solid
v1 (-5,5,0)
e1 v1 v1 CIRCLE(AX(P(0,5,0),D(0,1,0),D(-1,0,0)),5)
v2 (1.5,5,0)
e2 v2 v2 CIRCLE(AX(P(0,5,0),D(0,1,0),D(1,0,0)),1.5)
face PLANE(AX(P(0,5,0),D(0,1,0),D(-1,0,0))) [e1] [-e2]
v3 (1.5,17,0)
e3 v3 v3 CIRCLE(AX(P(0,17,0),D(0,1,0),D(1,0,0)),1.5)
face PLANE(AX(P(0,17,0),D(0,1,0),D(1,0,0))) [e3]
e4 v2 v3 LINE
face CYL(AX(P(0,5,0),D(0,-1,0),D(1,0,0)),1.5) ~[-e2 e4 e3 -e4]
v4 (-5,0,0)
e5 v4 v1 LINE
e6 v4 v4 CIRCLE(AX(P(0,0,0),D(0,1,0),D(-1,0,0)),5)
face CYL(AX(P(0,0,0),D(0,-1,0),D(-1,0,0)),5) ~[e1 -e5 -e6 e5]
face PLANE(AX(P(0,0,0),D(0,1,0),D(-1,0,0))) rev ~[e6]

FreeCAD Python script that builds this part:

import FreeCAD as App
import Part
import Sketcher
from FreeCAD import Vector

doc = App.newDocument("Part")
body = doc.addObject("PartDesign::Body", "Body")

# Sketch on XZ plane
sketch1 = body.newObject("Sketcher::SketchObject", "Sketch")
sketch1.AttachmentSupport = (doc.getObject("XZ_Plane"), [""])
sketch1.MapMode = "FlatFace"
sketch1.addGeometry(Part.Circle(Vector(0, 0, 0), Vector(0, 0, 1), 5), False)
sketch1.addConstraint(Sketcher.Constraint("Coincident", 0, 3, -1, 1))
sketch1.addConstraint(Sketcher.Constraint("Diameter", 0, 10.0))
pad1 = body.newObject("PartDesign::Pad", "Pad")
pad1.Profile = sketch1
pad1.Length = 5
pad1.Reversed = True

# Sketch on XZ plane
sketch2 = body.newObject("Sketcher::SketchObject", "Sketch001")
sketch2.AttachmentSupport = (doc.getObject("XZ_Plane"), [""])
sketch2.MapMode = "FlatFace"
sketch2.AttachmentOffset = App.Placement(Vector(0, 0, -5), App.Rotation())
sketch2.addGeometry(Part.Circle(Vector(0, 0, 0), Vector(0, 0, 1), 1.5), False)
sketch2.addConstraint(Sketcher.Constraint("Coincident", 0, 3, -1, 1))
sketch2.addConstraint(Sketcher.Constraint("Diameter", 0, 3.0))
pad2 = body.newObject("PartDesign::Pad", "Pad001")
pad2.Profile = sketch2
pad2.Length = 12
pad2.Reversed = True

doc.recompute()
